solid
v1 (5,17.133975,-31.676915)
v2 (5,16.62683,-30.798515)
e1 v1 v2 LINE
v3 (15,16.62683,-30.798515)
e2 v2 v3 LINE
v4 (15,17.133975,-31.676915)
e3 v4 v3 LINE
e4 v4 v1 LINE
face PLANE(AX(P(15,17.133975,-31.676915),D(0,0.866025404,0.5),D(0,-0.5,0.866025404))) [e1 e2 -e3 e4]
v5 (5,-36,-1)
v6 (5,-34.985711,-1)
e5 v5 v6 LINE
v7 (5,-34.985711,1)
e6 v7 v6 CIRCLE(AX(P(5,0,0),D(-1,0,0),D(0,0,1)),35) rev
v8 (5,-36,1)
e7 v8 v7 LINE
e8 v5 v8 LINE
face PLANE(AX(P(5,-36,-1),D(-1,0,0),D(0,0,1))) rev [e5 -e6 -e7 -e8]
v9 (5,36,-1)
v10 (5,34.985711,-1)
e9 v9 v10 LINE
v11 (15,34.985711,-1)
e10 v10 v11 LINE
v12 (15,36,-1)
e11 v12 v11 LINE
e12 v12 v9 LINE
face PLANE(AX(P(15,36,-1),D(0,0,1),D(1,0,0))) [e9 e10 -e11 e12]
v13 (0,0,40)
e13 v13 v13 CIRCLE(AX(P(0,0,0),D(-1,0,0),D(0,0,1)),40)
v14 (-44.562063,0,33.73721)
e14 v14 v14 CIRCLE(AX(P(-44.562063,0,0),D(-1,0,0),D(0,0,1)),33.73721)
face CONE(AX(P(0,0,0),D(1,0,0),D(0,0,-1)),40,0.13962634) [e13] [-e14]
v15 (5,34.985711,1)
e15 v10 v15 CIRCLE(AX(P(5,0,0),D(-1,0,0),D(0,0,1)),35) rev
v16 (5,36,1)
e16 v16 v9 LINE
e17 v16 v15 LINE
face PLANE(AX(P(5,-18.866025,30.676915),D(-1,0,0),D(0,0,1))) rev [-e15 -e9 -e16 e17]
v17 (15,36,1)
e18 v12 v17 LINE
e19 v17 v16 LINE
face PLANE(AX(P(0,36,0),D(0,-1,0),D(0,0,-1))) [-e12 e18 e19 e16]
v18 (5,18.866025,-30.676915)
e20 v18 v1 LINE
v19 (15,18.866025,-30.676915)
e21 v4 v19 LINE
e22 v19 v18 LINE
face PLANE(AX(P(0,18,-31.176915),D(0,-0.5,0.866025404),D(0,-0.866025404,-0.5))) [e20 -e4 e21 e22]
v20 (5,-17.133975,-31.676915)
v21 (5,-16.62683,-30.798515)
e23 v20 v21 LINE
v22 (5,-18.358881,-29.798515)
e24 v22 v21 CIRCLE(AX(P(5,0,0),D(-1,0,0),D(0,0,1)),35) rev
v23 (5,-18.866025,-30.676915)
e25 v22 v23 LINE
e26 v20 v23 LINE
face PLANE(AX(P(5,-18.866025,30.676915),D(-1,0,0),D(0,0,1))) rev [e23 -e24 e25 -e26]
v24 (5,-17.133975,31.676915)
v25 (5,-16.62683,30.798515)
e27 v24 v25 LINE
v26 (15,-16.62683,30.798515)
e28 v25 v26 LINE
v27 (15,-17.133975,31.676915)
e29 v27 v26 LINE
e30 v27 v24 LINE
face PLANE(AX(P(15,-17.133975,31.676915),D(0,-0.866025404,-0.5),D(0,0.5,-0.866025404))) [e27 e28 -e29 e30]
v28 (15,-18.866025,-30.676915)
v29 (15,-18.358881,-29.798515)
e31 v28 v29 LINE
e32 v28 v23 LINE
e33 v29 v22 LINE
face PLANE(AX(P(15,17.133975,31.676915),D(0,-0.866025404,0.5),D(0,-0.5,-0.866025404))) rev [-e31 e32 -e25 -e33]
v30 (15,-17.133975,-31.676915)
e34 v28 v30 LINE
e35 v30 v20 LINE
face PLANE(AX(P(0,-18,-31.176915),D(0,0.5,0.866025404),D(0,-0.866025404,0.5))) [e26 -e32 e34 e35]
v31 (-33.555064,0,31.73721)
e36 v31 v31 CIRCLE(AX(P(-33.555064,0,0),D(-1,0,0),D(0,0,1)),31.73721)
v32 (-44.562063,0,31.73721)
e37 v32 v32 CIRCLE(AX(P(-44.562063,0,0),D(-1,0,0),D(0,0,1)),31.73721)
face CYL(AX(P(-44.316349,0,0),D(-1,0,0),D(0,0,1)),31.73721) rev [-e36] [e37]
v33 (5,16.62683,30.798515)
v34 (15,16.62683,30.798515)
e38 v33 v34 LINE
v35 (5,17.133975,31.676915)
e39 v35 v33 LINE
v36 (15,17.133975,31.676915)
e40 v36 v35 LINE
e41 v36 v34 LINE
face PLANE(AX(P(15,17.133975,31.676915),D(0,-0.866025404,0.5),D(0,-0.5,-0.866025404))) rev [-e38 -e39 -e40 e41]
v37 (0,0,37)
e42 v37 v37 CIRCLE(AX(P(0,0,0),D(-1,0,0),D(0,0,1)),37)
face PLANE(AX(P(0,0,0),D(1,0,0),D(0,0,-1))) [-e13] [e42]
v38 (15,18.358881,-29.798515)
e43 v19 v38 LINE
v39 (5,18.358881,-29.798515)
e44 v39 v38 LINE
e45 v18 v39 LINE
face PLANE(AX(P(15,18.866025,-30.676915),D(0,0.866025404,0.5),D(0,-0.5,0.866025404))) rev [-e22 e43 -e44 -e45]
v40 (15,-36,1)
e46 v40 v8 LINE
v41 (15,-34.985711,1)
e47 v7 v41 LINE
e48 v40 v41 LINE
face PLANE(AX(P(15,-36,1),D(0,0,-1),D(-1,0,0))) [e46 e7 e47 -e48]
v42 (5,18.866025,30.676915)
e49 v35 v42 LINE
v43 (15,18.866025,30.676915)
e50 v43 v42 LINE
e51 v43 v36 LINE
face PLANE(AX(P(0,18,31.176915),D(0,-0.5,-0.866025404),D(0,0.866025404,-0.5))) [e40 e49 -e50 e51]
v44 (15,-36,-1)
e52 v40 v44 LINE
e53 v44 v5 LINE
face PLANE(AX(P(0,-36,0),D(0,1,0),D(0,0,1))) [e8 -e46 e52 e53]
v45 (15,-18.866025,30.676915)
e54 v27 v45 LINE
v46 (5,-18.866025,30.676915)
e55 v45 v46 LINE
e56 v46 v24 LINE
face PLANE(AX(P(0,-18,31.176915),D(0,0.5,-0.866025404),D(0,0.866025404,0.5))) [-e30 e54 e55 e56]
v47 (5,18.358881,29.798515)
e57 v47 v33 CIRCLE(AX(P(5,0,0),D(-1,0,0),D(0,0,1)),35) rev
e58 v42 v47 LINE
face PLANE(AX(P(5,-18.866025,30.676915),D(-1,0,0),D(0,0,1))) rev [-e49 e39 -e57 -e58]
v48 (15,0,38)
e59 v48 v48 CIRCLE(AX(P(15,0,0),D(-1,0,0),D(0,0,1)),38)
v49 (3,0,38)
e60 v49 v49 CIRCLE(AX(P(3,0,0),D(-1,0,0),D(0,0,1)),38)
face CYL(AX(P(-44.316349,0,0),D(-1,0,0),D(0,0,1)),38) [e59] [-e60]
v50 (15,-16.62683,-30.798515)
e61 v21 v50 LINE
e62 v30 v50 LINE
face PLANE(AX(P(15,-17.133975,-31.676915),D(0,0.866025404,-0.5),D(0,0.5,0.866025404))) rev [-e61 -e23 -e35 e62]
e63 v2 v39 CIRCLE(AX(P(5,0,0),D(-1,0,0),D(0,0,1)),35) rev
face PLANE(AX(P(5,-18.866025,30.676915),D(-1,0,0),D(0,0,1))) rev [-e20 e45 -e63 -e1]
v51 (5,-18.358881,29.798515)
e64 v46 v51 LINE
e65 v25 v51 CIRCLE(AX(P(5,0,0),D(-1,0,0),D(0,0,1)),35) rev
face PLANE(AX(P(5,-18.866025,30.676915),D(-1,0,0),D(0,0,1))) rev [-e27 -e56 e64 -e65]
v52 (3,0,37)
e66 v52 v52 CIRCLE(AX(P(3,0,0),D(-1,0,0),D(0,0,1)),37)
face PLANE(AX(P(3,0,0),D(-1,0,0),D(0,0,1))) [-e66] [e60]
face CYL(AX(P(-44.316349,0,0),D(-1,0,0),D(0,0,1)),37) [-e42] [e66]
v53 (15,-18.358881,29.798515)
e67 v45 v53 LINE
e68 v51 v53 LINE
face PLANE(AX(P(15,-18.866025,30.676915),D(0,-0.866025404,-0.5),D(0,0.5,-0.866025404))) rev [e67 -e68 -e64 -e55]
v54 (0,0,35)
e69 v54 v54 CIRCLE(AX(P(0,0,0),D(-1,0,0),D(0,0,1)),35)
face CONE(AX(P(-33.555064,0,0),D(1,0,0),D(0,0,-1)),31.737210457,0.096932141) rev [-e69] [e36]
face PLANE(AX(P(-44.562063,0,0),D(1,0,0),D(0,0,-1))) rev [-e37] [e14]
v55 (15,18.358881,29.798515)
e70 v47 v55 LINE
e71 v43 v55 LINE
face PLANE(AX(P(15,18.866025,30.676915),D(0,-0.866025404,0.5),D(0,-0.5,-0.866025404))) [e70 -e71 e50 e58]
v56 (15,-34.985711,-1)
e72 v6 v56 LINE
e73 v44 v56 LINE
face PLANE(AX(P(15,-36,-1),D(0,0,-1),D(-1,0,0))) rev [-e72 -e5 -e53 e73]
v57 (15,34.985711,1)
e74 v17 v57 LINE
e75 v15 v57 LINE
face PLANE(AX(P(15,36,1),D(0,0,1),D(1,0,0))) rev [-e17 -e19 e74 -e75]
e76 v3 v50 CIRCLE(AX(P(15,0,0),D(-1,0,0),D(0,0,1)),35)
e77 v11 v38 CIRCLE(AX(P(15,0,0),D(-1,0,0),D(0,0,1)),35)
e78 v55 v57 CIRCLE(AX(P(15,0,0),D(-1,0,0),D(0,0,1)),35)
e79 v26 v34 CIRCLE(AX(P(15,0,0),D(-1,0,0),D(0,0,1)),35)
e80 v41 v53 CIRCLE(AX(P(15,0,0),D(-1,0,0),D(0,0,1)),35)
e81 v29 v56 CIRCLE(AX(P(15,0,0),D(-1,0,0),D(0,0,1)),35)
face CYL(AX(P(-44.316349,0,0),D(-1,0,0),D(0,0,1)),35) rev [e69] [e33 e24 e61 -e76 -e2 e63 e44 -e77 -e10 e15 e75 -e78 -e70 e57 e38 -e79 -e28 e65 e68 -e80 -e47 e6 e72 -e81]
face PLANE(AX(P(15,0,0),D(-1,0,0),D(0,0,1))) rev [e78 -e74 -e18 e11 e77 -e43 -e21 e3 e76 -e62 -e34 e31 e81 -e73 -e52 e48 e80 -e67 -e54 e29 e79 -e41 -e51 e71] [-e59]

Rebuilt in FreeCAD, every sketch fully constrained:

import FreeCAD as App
import Part
import Sketcher

V = App.Vector
Q = App.Units.Quantity

doc = App.newDocument("Part")
body = doc.addObject("PartDesign::Body", "Body")

# Sketch on XY plane
sketch1 = doc.addObject("Sketcher::SketchObject", "Sketch")
body.addObject(sketch1)
sketch1.AttachmentSupport = (doc.XY_Plane, [""])
sketch1.MapMode = "FlatFace"
sketch1.addGeometry(Part.LineSegment(V(-44.6, 33.7, 0), V(-44.6, 31.7, 0)), False)
sketch1.addGeometry(Part.LineSegment(V(-44.6, 31.7, 0), V(-33.6, 31.7, 0)), False)
sketch1.addGeometry(Part.LineSegment(V(-33.6, 31.7, 0), V(0, 35, 0)), False)
sketch1.addGeometry(Part.LineSegment(V(0, 35, 0), V(15, 35, 0)), False)
sketch1.addGeometry(Part.LineSegment(V(15, 35, 0), V(15, 38, 0)), False)
sketch1.addGeometry(Part.LineSegment(V(15, 38, 0), V(3, 38, 0)), False)
sketch1.addGeometry(Part.LineSegment(V(3, 38, 0), V(3, 37, 0)), False)
sketch1.addGeometry(Part.LineSegment(V(3, 37, 0), V(0, 37, 0)), False)
sketch1.addGeometry(Part.LineSegment(V(0, 37, 0), V(0, 40, 0)), False)
sketch1.addGeometry(Part.LineSegment(V(0, 40, 0), V(-44.6, 33.7, 0)), False)
sketch1.addConstraint(Sketcher.Constraint("Coincident", 0, 2, 1, 1))
sketch1.addConstraint(Sketcher.Constraint("Coincident", 1, 2, 2, 1))
sketch1.addConstraint(Sketcher.Constraint("Coincident", 2, 2, 3, 1))
sketch1.addConstraint(Sketcher.Constraint("Coincident", 3, 2, 4, 1))
sketch1.addConstraint(Sketcher.Constraint("Coincident", 4, 2, 5, 1))
sketch1.addConstraint(Sketcher.Constraint("Coincident", 5, 2, 6, 1))
sketch1.addConstraint(Sketcher.Constraint("Coincident", 6, 2, 7, 1))
sketch1.addConstraint(Sketcher.Constraint("Coincident", 7, 2, 8, 1))
sketch1.addConstraint(Sketcher.Constraint("Coincident", 8, 2, 9, 1))
sketch1.addConstraint(Sketcher.Constraint("Coincident", 9, 2, 0, 1))
sketch1.addConstraint(Sketcher.Constraint("Vertical", 0))
sketch1.addConstraint(Sketcher.Constraint("Horizontal", 1))
sketch1.addConstraint(Sketcher.Constraint("Horizontal", 3))
sketch1.addConstraint(Sketcher.Constraint("Vertical", 4))
sketch1.addConstraint(Sketcher.Constraint("Horizontal", 5))
sketch1.addConstraint(Sketcher.Constraint("Vertical", 6))
sketch1.addConstraint(Sketcher.Constraint("Horizontal", 7))
sketch1.addConstraint(Sketcher.Constraint("Vertical", 8))
sketch1.addConstraint(Sketcher.Constraint("PointOnObject", 2, 2, -2))
sketch1.addConstraint(Sketcher.Constraint("PointOnObject", 7, 2, -2))
sketch1.addConstraint(Sketcher.Constraint("Equal", 7, 4))
sketch1.addConstraint(Sketcher.Constraint("Equal", 4, 8))
sketch1.addConstraint(Sketcher.Constraint("DistanceX", 3, 1, 3, 2, 15.0))
sketch1.addConstraint(Sketcher.Constraint("DistanceX", 5, 2, 5, 1, 12.0))
sketch1.addConstraint(Sketcher.Constraint("DistanceY", 0, 2, 0, 1, 2.0))
sketch1.addConstraint(Sketcher.Constraint("DistanceY", 6, 2, 6, 1, 1.0))
sketch1.addConstraint(Sketcher.Constraint("Angle", 9, Q("-172 deg")))
sketch1.addConstraint(Sketcher.Constraint("Distance", 9, 45.0))
sketch1.addConstraint(Sketcher.Constraint("DistanceY", -1, 1, 2, 2, 35.0))
sketch1.addConstraint(Sketcher.Constraint("DistanceX", 1, 1, 1, 2, 11.006999))
revolution = doc.addObject("PartDesign::Revolution", "Revolution")
body.addObject(revolution)
revolution.Profile = sketch1
revolution.ReferenceAxis = (sketch1, ["H_Axis"])
revolution.Angle = 360

# Sketch on XZ plane
sketch2 = doc.addObject("Sketcher::SketchObject", "Sketch001")
body.addObject(sketch2)
sketch2.AttachmentSupport = (doc.XZ_Plane, [""])
sketch2.MapMode = "FlatFace"
sketch2.addGeometry(Part.LineSegment(V(5, -1, 0), V(5, 1, 0)), False)
sketch2.addGeometry(Part.LineSegment(V(5, 1, 0), V(15, 1, 0)), False)
sketch2.addGeometry(Part.LineSegment(V(15, 1, 0), V(15, -1, 0)), False)
sketch2.addGeometry(Part.LineSegment(V(15, -1, 0), V(5, -1, 0)), False)
sketch2.addConstraint(Sketcher.Constraint("Coincident", 0, 2, 1, 1))
sketch2.addConstraint(Sketcher.Constraint("Coincident", 1, 2, 2, 1))
sketch2.addConstraint(Sketcher.Constraint("Coincident", 2, 2, 3, 1))
sketch2.addConstraint(Sketcher.Constraint("Coincident", 3, 2, 0, 1))
sketch2.addConstraint(Sketcher.Constraint("Vertical", 0))
sketch2.addConstraint(Sketcher.Constraint("Horizontal", 1))
sketch2.addConstraint(Sketcher.Constraint("Vertical", 2))
sketch2.addConstraint(Sketcher.Constraint("Horizontal", 3))
sketch2.addConstraint(Sketcher.Constraint("DistanceX", 1, 1, 1, 2, 10.0))
sketch2.addConstraint(Sketcher.Constraint("DistanceY", 0, 1, 0, 2, 2.0))
sketch2.addConstraint(Sketcher.Constraint("DistanceX", -1, 1, 0, 2, 5.0))
sketch2.addConstraint(Sketcher.Constraint("DistanceY", -1, 1, 0, 2, 1.0))
pocket1 = doc.addObject("PartDesign::Pocket", "Pocket")
body.addObject(pocket1)
pocket1.Profile = sketch2
pocket1.Length = 36
pocket1.Reversed = True
doc.recompute()

polarpattern = doc.addObject("PartDesign::PolarPattern", "PolarPattern")
body.addObject(polarpattern)
polarpattern.Originals = [pocket1]
polarpattern.Axis = (doc.X_Axis, [""])
polarpattern.Angle = 360
polarpattern.Occurrences = 6
body.Tip = polarpattern

doc.recompute()
